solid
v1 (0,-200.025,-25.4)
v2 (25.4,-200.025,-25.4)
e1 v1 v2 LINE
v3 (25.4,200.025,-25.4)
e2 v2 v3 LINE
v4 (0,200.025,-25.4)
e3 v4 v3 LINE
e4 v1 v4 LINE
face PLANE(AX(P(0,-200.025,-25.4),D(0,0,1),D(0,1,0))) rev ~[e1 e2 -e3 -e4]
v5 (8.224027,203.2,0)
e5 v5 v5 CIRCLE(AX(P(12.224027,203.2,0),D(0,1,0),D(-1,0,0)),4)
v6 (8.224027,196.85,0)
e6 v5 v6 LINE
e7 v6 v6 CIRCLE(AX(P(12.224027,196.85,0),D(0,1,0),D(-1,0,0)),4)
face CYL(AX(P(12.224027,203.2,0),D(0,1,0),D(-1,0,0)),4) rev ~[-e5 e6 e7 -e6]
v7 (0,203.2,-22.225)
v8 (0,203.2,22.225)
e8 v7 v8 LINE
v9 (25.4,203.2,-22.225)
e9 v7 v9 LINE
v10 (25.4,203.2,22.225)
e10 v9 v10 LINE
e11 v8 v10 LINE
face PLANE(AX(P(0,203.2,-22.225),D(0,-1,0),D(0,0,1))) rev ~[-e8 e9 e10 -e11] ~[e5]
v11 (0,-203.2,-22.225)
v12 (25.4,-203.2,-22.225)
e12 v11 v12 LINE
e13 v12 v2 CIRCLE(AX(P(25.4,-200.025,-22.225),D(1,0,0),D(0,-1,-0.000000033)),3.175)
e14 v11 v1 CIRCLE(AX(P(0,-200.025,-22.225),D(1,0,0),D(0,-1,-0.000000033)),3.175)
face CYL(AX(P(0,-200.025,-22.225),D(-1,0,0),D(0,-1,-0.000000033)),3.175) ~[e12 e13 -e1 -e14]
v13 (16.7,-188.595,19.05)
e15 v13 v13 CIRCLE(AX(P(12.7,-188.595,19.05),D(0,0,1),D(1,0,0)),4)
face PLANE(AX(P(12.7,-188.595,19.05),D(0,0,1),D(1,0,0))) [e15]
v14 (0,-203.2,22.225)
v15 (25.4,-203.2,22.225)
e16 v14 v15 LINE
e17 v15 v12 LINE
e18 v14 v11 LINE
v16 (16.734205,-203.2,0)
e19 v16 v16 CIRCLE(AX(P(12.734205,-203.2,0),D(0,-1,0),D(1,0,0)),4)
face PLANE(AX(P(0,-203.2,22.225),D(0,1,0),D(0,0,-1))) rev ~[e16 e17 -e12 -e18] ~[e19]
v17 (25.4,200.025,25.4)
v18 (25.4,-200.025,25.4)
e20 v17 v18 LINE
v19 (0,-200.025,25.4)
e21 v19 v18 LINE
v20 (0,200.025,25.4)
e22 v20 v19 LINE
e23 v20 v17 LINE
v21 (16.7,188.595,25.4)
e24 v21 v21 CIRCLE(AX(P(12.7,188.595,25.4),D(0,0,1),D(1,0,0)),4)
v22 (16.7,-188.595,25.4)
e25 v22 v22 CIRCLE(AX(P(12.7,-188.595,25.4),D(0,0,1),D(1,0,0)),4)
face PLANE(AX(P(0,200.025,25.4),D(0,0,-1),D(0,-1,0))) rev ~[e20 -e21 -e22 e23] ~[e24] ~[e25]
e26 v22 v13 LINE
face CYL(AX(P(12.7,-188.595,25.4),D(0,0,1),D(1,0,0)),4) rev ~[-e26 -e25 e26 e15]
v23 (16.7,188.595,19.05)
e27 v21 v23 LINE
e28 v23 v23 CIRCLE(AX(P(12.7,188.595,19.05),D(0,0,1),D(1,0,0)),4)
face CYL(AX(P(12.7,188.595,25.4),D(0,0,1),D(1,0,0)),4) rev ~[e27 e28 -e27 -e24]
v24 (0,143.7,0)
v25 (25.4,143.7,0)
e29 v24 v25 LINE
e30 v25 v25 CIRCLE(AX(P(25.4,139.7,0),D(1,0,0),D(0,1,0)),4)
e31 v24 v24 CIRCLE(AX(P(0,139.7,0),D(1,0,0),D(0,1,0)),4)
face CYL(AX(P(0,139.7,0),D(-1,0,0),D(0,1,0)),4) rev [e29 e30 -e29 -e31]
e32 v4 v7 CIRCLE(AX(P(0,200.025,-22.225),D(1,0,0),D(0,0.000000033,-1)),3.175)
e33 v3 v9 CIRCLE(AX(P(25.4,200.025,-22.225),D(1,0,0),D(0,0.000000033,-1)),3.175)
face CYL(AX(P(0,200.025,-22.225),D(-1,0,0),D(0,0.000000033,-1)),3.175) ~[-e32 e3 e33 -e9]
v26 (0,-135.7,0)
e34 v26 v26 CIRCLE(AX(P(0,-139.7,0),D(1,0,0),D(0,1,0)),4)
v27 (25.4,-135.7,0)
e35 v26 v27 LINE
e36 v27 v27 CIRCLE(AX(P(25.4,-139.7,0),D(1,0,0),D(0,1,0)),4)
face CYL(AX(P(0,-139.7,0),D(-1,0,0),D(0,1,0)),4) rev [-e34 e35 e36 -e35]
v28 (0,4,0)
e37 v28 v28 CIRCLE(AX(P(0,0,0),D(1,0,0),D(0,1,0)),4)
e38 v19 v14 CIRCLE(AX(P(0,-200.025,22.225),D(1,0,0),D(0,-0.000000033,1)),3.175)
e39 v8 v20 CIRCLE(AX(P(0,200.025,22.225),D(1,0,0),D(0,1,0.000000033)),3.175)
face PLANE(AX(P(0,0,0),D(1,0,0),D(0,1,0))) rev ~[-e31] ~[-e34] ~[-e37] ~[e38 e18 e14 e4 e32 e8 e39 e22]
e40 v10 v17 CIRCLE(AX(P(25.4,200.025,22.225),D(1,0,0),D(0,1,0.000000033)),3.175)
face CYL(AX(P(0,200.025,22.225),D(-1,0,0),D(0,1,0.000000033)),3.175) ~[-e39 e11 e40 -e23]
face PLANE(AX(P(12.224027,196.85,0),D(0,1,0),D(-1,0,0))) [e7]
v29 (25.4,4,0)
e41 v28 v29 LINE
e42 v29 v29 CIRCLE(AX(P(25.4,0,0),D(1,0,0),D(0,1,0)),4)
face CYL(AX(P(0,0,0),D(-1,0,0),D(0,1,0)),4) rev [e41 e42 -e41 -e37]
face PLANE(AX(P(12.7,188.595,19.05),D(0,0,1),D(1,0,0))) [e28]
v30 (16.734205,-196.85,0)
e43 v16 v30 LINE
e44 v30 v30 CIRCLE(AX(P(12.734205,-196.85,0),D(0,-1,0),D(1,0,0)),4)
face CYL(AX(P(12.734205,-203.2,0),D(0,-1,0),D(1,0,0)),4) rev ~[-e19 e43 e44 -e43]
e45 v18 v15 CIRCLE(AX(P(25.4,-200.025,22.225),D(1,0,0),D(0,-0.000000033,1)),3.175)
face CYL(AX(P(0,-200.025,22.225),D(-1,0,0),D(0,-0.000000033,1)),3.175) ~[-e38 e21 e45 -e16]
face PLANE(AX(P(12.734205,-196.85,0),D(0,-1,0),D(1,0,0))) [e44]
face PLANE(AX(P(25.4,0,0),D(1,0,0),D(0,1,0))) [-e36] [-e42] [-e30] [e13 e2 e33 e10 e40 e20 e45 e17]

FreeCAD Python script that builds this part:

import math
import FreeCAD as App
import Part
import Sketcher
from FreeCAD import Vector
Q = App.Units.Quantity

doc = App.newDocument("Part")
body = doc.addObject("PartDesign::Body", "Body")

# Sketch on YZ plane
sketch1 = body.newObject("Sketcher::SketchObject", "Sketch")
sketch1.AttachmentSupport = (doc.getObject("YZ_Plane"), [""])
sketch1.MapMode = "FlatFace"
sketch1.addGeometry([
    Part.ArcOfCircle(Part.Circle(Vector(200.025, 22.225, 0), Vector(0, 0, 1), 3.175), math.radians(0.000002), math.radians(89.999998)),  # 0
    Part.LineSegment(Vector(200.025, 25.4, 0), Vector(-200.025, 25.4, 0)),  # 1
    Part.ArcOfCircle(Part.Circle(Vector(-200.025, 22.225, 0), Vector(0, 0, 1), 3.175), math.radians(90.000002), math.radians(179.999998)),  # 2
    Part.LineSegment(Vector(-203.2, 22.225, 0), Vector(-203.2, -22.225, 0)),  # 3
    Part.ArcOfCircle(Part.Circle(Vector(-200.025, -22.225, 0), Vector(0, 0, 1), 3.175), math.radians(-179.999998), math.radians(-90.000002)),  # 4
    Part.LineSegment(Vector(-200.025, -25.4, 0), Vector(200.025, -25.4, 0)),  # 5
    Part.ArcOfCircle(Part.Circle(Vector(200.025, -22.225, 0), Vector(0, 0, 1), 3.175), math.radians(-89.999998), math.radians(-0.000002)),  # 6
    Part.LineSegment(Vector(203.2, -22.225, 0), Vector(203.2, 22.225, 0)),  # 7
    Part.Circle(Vector(-139.7, 0, 0), Vector(0, 0, 1), 4),  # 8
    Part.Circle(Vector(0, 0, 0), Vector(0, 0, 1), 4),  # 9
    Part.Circle(Vector(139.7, 0, 0), Vector(0, 0, 1), 4),  # 10
], False)
sketch1.addConstraint([
    Sketcher.Constraint("Tangent", 0, 2, 1, 1),
    Sketcher.Constraint("Tangent", 1, 2, 2, 1),
    Sketcher.Constraint("Tangent", 2, 2, 3, 1),
    Sketcher.Constraint("Tangent", 3, 2, 4, 1),
    Sketcher.Constraint("Tangent", 4, 2, 5, 1),
    Sketcher.Constraint("Tangent", 5, 2, 6, 1),
    Sketcher.Constraint("Tangent", 6, 2, 7, 1),
    Sketcher.Constraint("Tangent", 7, 2, 0, 1),
    Sketcher.Constraint("Horizontal", 1),
    Sketcher.Constraint("Vertical", 3),
    Sketcher.Constraint("Horizontal", 5),
    Sketcher.Constraint("Vertical", 7),
    Sketcher.Constraint("Coincident", 9, 3, -1, 1),
    Sketcher.Constraint("Equal", 0, 2),
    Sketcher.Constraint("Equal", 2, 4),
    Sketcher.Constraint("Equal", 4, 6),
    Sketcher.Constraint("Equal", 8, 9),
    Sketcher.Constraint("Equal", 9, 10),
    Sketcher.Constraint("Symmetric", 0, 3, 4, 3, -1, 1),
    Sketcher.Constraint("Symmetric", 8, 3, 10, 3, -1, 1),
    Sketcher.Constraint("PointOnObject", 8, 3, -1),
    Sketcher.Constraint("DistanceY", -1, 1, 0, 2, Q("1 in")),
    Sketcher.Constraint("DistanceX", 2, 2, -1, 1, Q("8 in")),
    Sketcher.Constraint("Radius", 0, Q("0.125 in")),
    Sketcher.Constraint("DistanceX", 8, 3, 10, 3, Q("11 in")),
    Sketcher.Constraint("Diameter", 8, 8.0),
])
pad1 = body.newObject("PartDesign::Pad", "Pad")
pad1.Profile = sketch1
pad1.Length = Q("1 in")

# Sketch on XZ plane
sketch2 = body.newObject("Sketcher::SketchObject", "Sketch001")
sketch2.AttachmentSupport = (doc.getObject("XZ_Plane"), [""])
sketch2.MapMode = "FlatFace"
sketch2.AttachmentOffset = App.Placement(Vector(0, 0, 8 * 25.4), App.Rotation())
sketch2.addGeometry(Part.Circle(Vector(12.734205, 0, 0), Vector(0, 0, 1), 4), False)
sketch2.addConstraint([
    Sketcher.Constraint("PointOnObject", 0, 3, -1),
    Sketcher.Constraint("Diameter", 0, 8.0),
    Sketcher.Constraint("DistanceX", -1, 1, 0, 3, 12.734205),
])
pocket1 = body.newObject("PartDesign::Pocket", "Pocket")
pocket1.Profile = sketch2
pocket1.Length = Q("0.25 in")

# Sketch on XZ plane
sketch3 = body.newObject("Sketcher::SketchObject", "Sketch002")
sketch3.AttachmentSupport = (doc.getObject("XZ_Plane"), [""])
sketch3.MapMode = "FlatFace"
sketch3.AttachmentOffset = App.Placement(Vector(0, 0, -8 * 25.4), App.Rotation())
sketch3.addGeometry(Part.Circle(Vector(12.224027, 0, 0), Vector(0, 0, 1), 4), False)
sketch3.addConstraint([
    Sketcher.Constraint("PointOnObject", 0, 3, -1),
    Sketcher.Constraint("Diameter", 0, 8.0),
    Sketcher.Constraint("DistanceX", -1, 1, 0, 3, 12.224027),
])
pocket2 = body.newObject("PartDesign::Pocket", "Pocket001")
pocket2.Profile = sketch3
pocket2.Length = Q("0.25 in")
pocket2.Reversed = True

# Sketch on XY plane
sketch4 = body.newObject("Sketcher::SketchObject", "Sketch003")
sketch4.AttachmentSupport = (doc.getObject("XY_Plane"), [""])
sketch4.MapMode = "FlatFace"
sketch4.AttachmentOffset = App.Placement(Vector(0, 0, 1 * 25.4), App.Rotation())
sketch4.addGeometry(Part.Circle(Vector(12.7, -188.595, 0), Vector(0, 0, 1), 4), False)
sketch4.addConstraint([
    Sketcher.Constraint("DistanceX", -1, 1, 0, 3, Q("0.5 in")),
    Sketcher.Constraint("Diameter", 0, 8.0),
    Sketcher.Constraint("DistanceY", 0, 3, -1, 1, Q("7.425 in")),
])
pocket3 = body.newObject("PartDesign::Pocket", "Pocket002")
pocket3.Profile = sketch4
pocket3.Length = Q("0.25 in")

# Sketch on XY plane
sketch5 = body.newObject("Sketcher::SketchObject", "Sketch004")
sketch5.AttachmentSupport = (doc.getObject("XY_Plane"), [""])
sketch5.MapMode = "FlatFace"
sketch5.AttachmentOffset = App.Placement(Vector(0, 0, 1 * 25.4), App.Rotation())
sketch5.addGeometry(Part.Circle(Vector(12.7, 188.595, 0), Vector(0, 0, 1), 4), False)
sketch5.addConstraint([
    Sketcher.Constraint("DistanceX", -1, 1, 0, 3, Q("0.5 in")),
    Sketcher.Constraint("Diameter", 0, 8.0),
    Sketcher.Constraint("DistanceY", -1, 1, 0, 3, Q("7.425 in")),
])
pocket4 = body.newObject("PartDesign::Pocket", "Pocket003")
pocket4.Profile = sketch5
pocket4.Length = Q("0.25 in")

doc.recompute()
